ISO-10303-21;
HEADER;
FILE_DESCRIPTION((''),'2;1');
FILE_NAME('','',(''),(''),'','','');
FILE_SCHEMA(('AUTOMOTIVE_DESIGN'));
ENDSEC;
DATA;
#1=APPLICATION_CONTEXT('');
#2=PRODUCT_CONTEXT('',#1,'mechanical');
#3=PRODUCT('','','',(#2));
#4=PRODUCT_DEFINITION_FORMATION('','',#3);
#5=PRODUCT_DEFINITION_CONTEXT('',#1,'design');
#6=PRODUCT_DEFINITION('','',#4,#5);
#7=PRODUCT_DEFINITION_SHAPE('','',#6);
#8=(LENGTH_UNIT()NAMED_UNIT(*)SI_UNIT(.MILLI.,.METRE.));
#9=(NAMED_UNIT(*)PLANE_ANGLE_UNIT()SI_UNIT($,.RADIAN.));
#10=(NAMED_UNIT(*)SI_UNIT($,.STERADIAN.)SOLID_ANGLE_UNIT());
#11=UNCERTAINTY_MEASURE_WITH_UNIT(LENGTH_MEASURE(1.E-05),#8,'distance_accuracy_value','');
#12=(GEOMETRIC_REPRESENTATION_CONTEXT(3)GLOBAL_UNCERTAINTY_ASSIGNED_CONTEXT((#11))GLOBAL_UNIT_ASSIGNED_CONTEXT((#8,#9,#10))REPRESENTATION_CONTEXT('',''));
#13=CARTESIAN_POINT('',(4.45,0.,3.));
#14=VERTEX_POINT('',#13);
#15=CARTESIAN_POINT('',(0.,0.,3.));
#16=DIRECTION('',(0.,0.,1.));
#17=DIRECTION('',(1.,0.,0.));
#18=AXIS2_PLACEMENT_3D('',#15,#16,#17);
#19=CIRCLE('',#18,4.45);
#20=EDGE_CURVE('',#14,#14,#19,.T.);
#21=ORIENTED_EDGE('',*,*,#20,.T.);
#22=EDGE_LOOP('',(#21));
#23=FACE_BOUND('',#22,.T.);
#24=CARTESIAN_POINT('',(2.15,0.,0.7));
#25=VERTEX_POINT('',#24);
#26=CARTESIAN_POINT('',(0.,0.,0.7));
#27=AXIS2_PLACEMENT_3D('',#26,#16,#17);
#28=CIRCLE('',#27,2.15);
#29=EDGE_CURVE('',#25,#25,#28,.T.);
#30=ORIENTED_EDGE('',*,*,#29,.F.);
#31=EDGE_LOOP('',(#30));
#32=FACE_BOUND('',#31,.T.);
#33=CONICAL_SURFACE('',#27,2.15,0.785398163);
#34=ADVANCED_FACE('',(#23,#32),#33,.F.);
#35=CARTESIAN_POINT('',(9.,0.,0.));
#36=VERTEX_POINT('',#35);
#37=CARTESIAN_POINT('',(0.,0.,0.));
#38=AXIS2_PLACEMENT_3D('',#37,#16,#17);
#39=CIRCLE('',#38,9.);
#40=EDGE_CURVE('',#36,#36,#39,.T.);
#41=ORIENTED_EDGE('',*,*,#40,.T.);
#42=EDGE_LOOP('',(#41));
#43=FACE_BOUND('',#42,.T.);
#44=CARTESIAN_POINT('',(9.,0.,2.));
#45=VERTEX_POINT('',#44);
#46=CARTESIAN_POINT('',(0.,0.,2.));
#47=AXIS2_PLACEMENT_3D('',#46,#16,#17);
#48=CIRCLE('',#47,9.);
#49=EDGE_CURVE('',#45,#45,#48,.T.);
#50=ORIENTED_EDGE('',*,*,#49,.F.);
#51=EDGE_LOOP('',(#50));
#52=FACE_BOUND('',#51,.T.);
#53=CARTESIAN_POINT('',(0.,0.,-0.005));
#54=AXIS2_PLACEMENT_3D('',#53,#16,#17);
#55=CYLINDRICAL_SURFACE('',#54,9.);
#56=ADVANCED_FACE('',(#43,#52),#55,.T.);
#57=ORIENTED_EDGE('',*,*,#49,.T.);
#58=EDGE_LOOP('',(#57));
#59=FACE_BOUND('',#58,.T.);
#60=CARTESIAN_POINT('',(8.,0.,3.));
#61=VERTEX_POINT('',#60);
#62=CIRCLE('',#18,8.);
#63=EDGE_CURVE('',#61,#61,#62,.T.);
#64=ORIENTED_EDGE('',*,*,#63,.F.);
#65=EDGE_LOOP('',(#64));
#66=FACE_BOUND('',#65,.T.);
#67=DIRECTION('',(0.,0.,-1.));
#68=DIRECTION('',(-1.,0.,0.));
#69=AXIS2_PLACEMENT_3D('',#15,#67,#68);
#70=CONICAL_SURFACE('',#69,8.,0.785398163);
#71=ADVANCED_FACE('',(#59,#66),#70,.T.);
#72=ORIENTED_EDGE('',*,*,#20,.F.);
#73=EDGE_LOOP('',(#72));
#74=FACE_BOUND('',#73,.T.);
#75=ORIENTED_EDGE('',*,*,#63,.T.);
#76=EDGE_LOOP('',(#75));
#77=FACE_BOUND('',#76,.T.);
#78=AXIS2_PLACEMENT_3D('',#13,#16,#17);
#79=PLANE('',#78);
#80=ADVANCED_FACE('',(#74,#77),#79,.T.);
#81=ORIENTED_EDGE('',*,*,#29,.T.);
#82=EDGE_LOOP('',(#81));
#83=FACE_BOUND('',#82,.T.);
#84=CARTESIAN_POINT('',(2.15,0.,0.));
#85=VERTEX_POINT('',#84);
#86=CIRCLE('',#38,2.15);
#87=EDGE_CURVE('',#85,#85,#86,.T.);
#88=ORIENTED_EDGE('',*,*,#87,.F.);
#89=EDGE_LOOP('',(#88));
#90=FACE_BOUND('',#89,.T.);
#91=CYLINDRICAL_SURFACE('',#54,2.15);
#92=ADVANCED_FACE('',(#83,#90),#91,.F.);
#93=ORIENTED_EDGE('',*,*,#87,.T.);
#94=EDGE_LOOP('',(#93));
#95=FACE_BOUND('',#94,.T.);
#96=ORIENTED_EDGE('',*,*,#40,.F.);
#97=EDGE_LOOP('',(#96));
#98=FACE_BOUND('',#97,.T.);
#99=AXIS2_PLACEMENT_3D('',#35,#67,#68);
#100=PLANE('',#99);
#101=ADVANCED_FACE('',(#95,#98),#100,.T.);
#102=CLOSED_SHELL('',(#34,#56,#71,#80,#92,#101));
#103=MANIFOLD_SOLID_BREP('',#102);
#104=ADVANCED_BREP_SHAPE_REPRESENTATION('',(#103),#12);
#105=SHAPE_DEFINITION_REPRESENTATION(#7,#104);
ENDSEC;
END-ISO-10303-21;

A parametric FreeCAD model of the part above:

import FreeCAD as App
import Part
import Sketcher
Q = App.Units.Quantity

doc = App.newDocument("Part")
body = doc.addObject("PartDesign::Body", "Body")

sketch1 = body.newObject("Sketcher::SketchObject", "Sketch")
sketch1.AttachmentSupport = (doc.getObject("XZ_Plane"), [""])
sketch1.MapMode = "FlatFace"
sketch1.addGeometry([
    Part.LineSegment(App.Vector(9, 2, 0), App.Vector(9, 0, 0)),
    Part.LineSegment(App.Vector(9, 0, 0), App.Vector(2.1, 0, 0)),
    Part.LineSegment(App.Vector(2.1, 0, 0), App.Vector(2.1, 0.7, 0)),
    Part.LineSegment(App.Vector(2.1, 0.7, 0), App.Vector(4.5, 3, 0)),
    Part.LineSegment(App.Vector(4.5, 3, 0), App.Vector(8, 3, 0)),
    Part.LineSegment(App.Vector(8, 3, 0), App.Vector(9, 2, 0)),
], False)
sketch1.addConstraint([
    Sketcher.Constraint("Coincident", 0, 2, 1, 1),
    Sketcher.Constraint("Coincident", 1, 2, 2, 1),
    Sketcher.Constraint("Coincident", 2, 2, 3, 1),
    Sketcher.Constraint("Coincident", 3, 2, 4, 1),
    Sketcher.Constraint("Coincident", 4, 2, 5, 1),
    Sketcher.Constraint("Coincident", 5, 2, 0, 1),
    Sketcher.Constraint("Vertical", 0),
    Sketcher.Constraint("Horizontal", 1),
    Sketcher.Constraint("Vertical", 2),
    Sketcher.Constraint("Horizontal", 4),
    Sketcher.Constraint("PointOnObject", 0, 2, -1),
    Sketcher.Constraint("Perpendicular", 3, 5),
    Sketcher.Constraint("DistanceY", 0, 2, 0, 1, 2.0),
    Sketcher.Constraint("Angle", 3, Q("45 deg")),
    Sketcher.Constraint("DistanceY", 2, 1, 2, 2, 0.7),
    Sketcher.Constraint("DistanceX", -1, 1, 0, 2, 9.0),
    Sketcher.Constraint("DistanceY", -1, 1, 3, 2, 3.0),
    Sketcher.Constraint("DistanceX", 1, 2, 1, 1, 6.85),
])
revolution = body.newObject("PartDesign::Revolution", "Revolution")
revolution.Profile = sketch1
revolution.ReferenceAxis = (sketch1, ["V_Axis"])
revolution.Angle = 360

doc.recompute()
